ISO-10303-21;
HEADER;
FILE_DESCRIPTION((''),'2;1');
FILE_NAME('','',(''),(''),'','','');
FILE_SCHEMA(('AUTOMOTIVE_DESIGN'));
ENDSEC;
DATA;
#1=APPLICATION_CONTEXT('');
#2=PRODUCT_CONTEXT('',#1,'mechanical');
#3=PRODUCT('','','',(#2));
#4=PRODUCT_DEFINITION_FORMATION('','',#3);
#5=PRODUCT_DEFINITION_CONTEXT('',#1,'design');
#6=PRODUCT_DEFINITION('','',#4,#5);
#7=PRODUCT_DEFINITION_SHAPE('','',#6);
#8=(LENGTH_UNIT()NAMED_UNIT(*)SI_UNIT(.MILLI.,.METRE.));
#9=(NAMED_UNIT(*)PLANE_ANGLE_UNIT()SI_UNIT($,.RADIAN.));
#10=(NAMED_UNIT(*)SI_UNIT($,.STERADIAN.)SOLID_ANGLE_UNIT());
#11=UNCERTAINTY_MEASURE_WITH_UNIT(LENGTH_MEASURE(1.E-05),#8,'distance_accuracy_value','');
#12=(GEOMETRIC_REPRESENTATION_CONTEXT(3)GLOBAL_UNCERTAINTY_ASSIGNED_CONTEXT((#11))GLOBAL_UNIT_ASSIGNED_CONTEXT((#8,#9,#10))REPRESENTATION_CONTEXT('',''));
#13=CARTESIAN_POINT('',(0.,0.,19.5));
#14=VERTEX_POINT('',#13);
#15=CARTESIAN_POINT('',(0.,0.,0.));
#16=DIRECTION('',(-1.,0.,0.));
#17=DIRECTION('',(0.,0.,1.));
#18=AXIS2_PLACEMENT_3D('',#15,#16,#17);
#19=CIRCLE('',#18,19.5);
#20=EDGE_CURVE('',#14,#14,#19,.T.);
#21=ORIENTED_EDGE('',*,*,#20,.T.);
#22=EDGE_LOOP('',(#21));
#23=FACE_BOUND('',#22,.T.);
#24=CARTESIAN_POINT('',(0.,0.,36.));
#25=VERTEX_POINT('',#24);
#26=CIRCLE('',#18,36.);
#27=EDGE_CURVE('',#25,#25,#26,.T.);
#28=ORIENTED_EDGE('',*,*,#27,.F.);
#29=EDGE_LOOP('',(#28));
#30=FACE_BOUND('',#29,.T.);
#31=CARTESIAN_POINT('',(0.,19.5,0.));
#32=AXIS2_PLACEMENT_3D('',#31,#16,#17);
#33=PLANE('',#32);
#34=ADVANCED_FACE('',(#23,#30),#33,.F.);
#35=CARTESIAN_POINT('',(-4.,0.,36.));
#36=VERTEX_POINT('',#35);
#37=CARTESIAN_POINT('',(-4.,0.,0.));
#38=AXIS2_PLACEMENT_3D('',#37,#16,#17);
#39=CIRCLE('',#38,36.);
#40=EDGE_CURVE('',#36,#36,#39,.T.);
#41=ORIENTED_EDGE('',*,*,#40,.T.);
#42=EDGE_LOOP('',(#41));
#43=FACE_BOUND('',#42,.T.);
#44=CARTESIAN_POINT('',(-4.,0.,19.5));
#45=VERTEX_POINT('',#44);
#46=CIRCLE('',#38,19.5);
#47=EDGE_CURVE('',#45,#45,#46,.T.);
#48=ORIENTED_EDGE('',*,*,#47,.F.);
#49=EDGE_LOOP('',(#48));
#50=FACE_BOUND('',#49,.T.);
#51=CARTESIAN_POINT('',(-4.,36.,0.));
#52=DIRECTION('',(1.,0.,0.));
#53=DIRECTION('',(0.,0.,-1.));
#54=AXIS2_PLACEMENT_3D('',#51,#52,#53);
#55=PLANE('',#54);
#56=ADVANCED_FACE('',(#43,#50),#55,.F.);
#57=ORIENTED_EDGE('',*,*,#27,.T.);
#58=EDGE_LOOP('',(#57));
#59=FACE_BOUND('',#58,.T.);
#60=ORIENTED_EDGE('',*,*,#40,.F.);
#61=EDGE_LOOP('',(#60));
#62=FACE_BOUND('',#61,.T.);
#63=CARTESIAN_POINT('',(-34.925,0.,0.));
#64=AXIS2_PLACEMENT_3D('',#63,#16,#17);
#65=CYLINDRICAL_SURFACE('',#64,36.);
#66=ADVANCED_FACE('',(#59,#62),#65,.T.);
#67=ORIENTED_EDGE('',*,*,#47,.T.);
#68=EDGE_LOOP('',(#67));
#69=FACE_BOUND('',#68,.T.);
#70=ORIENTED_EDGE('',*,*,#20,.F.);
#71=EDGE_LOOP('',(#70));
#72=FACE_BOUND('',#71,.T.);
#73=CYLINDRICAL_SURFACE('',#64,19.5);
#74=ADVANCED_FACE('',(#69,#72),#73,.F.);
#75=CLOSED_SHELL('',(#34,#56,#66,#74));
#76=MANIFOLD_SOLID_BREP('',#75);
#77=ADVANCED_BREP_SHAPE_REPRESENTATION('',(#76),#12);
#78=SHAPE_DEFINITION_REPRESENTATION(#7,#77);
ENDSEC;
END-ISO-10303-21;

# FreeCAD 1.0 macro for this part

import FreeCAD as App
import Part
import Sketcher
from FreeCAD import Vector

doc = App.newDocument("Part")
body = doc.addObject("PartDesign::Body", "Body")

# Sketch on XY plane
sketch1 = body.newObject("Sketcher::SketchObject", "Sketch")
sketch1.AttachmentSupport = (doc.getObject("XY_Plane"), [""])
sketch1.MapMode = "FlatFace"
sketch1.addGeometry([
    Part.LineSegment(Vector(-4, 36, 0), Vector(-4, 19.5, 0)),
    Part.LineSegment(Vector(-4, 19.5, 0), Vector(0, 19.5, 0)),
    Part.LineSegment(Vector(0, 19.5, 0), Vector(0, 36, 0)),
    Part.LineSegment(Vector(0, 36, 0), Vector(-4, 36, 0)),
], False)
sketch1.addConstraint([
    Sketcher.Constraint("Coincident", 0, 2, 1, 1),
    Sketcher.Constraint("Coincident", 1, 2, 2, 1),
    Sketcher.Constraint("Coincident", 2, 2, 3, 1),
    Sketcher.Constraint("Coincident", 3, 2, 0, 1),
    Sketcher.Constraint("Vertical", 0),
    Sketcher.Constraint("Horizontal", 1),
    Sketcher.Constraint("Vertical", 2),
    Sketcher.Constraint("Horizontal", 3),
    Sketcher.Constraint("PointOnObject", 1, 2, -2),
    Sketcher.Constraint("DistanceX", 1, 1, 1, 2, 4.0),
    Sketcher.Constraint("DistanceY", 0, 2, 0, 1, 16.5),
    Sketcher.Constraint("DistanceY", -1, 1, 2, 2, 36.0),
])
revolution = body.newObject("PartDesign::Revolution", "Revolution")
revolution.Profile = sketch1
revolution.ReferenceAxis = (sketch1, ["H_Axis"])
revolution.Angle = 360

doc.recompute()
